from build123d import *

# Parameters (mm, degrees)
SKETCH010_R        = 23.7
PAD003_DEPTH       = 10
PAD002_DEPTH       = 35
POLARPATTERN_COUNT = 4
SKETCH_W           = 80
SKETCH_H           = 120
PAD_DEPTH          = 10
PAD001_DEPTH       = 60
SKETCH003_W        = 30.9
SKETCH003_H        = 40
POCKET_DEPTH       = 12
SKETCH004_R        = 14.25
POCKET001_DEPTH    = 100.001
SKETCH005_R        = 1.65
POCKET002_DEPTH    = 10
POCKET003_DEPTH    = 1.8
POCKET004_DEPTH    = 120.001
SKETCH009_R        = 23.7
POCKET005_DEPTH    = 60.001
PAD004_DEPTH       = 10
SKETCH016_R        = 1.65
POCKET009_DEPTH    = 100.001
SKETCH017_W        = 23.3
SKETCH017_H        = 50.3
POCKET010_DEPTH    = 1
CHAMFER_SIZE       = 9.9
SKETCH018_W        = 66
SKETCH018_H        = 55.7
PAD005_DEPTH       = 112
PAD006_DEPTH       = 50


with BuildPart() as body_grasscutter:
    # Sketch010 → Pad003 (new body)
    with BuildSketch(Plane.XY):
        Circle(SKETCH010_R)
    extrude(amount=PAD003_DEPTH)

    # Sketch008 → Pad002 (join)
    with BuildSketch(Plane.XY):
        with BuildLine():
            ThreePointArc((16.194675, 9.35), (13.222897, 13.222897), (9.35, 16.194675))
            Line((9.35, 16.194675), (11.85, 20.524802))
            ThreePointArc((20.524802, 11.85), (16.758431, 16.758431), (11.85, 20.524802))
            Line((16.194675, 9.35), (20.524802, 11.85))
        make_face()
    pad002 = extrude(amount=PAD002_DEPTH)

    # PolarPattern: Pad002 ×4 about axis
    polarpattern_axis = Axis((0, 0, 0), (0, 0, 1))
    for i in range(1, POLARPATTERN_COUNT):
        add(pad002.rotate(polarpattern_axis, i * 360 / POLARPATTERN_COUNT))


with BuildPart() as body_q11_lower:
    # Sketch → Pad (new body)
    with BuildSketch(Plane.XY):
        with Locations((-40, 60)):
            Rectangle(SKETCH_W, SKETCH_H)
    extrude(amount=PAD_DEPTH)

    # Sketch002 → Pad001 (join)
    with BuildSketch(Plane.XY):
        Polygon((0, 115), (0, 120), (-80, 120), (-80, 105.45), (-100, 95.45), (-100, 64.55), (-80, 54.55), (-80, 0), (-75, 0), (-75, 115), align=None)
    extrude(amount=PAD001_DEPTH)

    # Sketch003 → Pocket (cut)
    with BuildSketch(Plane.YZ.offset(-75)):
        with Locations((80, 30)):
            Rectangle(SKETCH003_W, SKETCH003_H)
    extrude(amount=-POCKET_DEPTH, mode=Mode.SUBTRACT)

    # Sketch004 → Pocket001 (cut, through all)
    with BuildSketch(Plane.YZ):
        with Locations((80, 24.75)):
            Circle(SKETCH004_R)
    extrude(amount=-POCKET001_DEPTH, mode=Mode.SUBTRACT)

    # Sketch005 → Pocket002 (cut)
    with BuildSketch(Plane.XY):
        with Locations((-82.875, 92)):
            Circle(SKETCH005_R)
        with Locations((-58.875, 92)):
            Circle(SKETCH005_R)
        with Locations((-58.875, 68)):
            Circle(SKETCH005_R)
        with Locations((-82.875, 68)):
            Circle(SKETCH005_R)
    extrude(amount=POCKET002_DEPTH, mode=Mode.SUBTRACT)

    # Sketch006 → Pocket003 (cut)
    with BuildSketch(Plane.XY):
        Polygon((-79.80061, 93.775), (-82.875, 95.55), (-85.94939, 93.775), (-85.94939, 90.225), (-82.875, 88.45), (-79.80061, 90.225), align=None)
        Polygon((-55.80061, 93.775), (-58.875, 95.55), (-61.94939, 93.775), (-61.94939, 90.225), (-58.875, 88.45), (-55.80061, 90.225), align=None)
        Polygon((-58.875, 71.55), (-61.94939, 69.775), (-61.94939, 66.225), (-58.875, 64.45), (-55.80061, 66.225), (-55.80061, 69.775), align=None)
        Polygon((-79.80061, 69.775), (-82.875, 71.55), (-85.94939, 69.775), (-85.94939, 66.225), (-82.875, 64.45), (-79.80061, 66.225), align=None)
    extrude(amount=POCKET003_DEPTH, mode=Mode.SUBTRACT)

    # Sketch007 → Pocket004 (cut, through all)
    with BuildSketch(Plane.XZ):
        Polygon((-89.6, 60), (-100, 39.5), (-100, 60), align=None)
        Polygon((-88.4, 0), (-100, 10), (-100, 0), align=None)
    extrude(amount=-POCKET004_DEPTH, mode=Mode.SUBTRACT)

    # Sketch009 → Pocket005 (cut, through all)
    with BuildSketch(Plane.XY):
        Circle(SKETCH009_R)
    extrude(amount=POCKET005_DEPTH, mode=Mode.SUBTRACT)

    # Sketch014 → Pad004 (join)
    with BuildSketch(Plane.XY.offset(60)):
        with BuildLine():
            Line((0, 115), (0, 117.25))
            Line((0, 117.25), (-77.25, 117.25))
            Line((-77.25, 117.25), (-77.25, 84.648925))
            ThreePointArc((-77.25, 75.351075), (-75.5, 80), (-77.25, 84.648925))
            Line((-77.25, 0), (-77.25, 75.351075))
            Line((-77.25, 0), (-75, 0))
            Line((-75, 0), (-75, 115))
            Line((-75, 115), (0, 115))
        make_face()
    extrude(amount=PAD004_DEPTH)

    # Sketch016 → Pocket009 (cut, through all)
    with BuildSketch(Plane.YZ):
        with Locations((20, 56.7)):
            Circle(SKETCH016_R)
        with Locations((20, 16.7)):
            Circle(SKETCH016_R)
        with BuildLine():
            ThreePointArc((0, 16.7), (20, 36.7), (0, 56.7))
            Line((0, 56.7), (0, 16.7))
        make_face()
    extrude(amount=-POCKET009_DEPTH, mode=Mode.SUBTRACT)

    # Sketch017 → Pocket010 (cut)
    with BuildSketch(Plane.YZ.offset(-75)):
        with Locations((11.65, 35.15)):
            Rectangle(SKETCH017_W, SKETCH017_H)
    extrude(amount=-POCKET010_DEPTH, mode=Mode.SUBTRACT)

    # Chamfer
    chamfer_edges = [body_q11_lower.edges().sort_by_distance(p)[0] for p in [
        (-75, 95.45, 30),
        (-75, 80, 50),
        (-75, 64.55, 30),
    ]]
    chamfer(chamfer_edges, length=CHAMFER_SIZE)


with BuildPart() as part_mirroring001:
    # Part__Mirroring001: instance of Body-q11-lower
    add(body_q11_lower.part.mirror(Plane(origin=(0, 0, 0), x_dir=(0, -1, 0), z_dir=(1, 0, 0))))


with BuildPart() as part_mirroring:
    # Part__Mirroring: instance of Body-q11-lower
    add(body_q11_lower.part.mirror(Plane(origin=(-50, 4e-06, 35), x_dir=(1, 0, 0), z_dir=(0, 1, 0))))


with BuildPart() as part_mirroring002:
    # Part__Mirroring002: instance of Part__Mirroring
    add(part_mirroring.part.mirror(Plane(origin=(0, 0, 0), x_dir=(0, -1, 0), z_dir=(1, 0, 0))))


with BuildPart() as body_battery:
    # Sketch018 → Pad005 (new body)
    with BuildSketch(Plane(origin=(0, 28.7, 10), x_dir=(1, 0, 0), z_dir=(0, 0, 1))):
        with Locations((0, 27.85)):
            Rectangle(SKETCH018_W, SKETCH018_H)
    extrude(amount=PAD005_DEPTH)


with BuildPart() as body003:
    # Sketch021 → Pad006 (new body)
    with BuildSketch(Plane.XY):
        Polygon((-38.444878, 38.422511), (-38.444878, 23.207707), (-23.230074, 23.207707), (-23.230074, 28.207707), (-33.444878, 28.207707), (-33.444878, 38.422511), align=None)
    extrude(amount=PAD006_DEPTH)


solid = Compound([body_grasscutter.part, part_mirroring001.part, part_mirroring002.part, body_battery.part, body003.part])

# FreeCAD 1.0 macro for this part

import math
import FreeCAD as App
import Part
import Sketcher
from FreeCAD import Vector
Q = App.Units.Quantity


def edges_at(feature, points):
    """Names of the edges that pass closest to the given points."""
    edges = feature.Shape.Edges
    near = lambda p: min(range(len(edges)), key=lambda i: edges[i].distToShape(Part.Vertex(*p))[0])
    return sorted({f"Edge{near(p) + 1}" for p in points})


def add_polygon(sketch, points):
    """Adds a closed chain of lines whose ends are joined by coincident constraints."""
    first, n = sketch.GeometryCount, len(points)
    for a, b in zip(points, points[1:] + points[:1]):
        sketch.addGeometry(Part.LineSegment(App.Vector(*a, 0), App.Vector(*b, 0)), False)
    for i in range(n):
        sketch.addConstraint(Sketcher.Constraint("Coincident", first + i, 2, first + (i + 1) % n, 1))

doc = App.newDocument("Part")
body = doc.addObject("PartDesign::Body", "Body")

sketch1 = doc.addObject("Sketcher::SketchObject", "Sketch")
body.addObject(sketch1)
sketch1.AttachmentSupport = (doc.XY_Plane, [""])
sketch1.MapMode = "FlatFace"
sketch1.addGeometry(Part.Circle(Vector(0, 0, 0), Vector(0, 0, 1), 23.7), False)
sketch1.addConstraint([
    Sketcher.Constraint("Coincident", 0, 3, -1, 1),
    Sketcher.Constraint("Diameter", 0, Q("47.4 mm")),
])
pad1 = doc.addObject("PartDesign::Pad", "Pad")
body.addObject(pad1)
pad1.Profile = sketch1
pad1.Length = 10

sketch2 = doc.addObject("Sketcher::SketchObject", "Sketch001")
body.addObject(sketch2)
sketch2.AttachmentSupport = (doc.XY_Plane, [""])
sketch2.MapMode = "FlatFace"
sketch2.addGeometry([
    Part.ArcOfCircle(Part.Circle(Vector(0.000007, 0.000007, 0), Vector(0, 0, 1), 18.699991), math.radians(29.999993), math.radians(60.000007)),
    Part.LineSegment(Vector(16.194675, 9.35, 0), Vector(20.524802, 11.85, 0)),
    Part.ArcOfCircle(Part.Circle(Vector(0.00001, 0.00001, 0), Vector(0, 0, 1), 23.699987), math.radians(29.999992), math.radians(60.000008)),
    Part.LineSegment(Vector(11.85, 20.524802, 0), Vector(9.35, 16.194675, 0)),
], False)
sketch2.addConstraint([
    Sketcher.Constraint("Coincident", 0, 1, 1, 1),
    Sketcher.Constraint("Coincident", 1, 2, 2, 1),
    Sketcher.Constraint("Coincident", 2, 2, 3, 1),
    Sketcher.Constraint("Coincident", 3, 2, 0, 2),
    Sketcher.Constraint("Coincident", 0, 3, -1, 1),
    Sketcher.Constraint("Coincident", 2, 3, 0, 3),
    Sketcher.Constraint("Angle", 1, Q("30 deg")),
    Sketcher.Constraint("Angle", 3, Q("-120 deg")),
    Sketcher.Constraint("Distance", 1, Q("5 mm")),
    Sketcher.Constraint("DistanceY", -1, 1, 0, 1, Q("9.35 mm")),
    Sketcher.Constraint("DistanceX", -1, 1, 2, 2, Q("11.85 mm")),
    Sketcher.Constraint("Radius", 0, Q("18.699991 mm")),
])
pad2 = doc.addObject("PartDesign::Pad", "Pad001")
body.addObject(pad2)
pad2.Profile = sketch2
pad2.Length = 35
doc.recompute()

polarpattern = doc.addObject("PartDesign::PolarPattern", "PolarPattern")
body.addObject(polarpattern)
polarpattern.Originals = [pad2]
polarpattern.Axis = (doc.Z_Axis, [""])
polarpattern.Angle = 360
polarpattern.Occurrences = 4
body.Tip = polarpattern
body2 = doc.addObject("PartDesign::Body", "Body001")

sketch3 = doc.addObject("Sketcher::SketchObject", "Sketch002")
body2.addObject(sketch3)
sketch3.AttachmentSupport = (doc.getObject("XY_Plane001"), [""])
sketch3.MapMode = "FlatFace"
add_polygon(sketch3, [(-80, 120), (-80, 0), (0, 0), (0, 120)])
sketch3.addConstraint([
    Sketcher.Constraint("Vertical", 0),
    Sketcher.Constraint("Horizontal", 1),
    Sketcher.Constraint("Vertical", 2),
    Sketcher.Constraint("Horizontal", 3),
    Sketcher.Constraint("Coincident", 1, 2, -1, 1),
    Sketcher.Constraint("DistanceX", 1, 1, 1, 2, Q("80 mm")),
    Sketcher.Constraint("DistanceY", 0, 2, 0, 1, Q("120 mm")),
])
pad3 = doc.addObject("PartDesign::Pad", "Pad002")
body2.addObject(pad3)
pad3.Profile = sketch3
pad3.Length = 10

sketch4 = doc.addObject("Sketcher::SketchObject", "Sketch003")
body2.addObject(sketch4)
sketch4.AttachmentSupport = (doc.getObject("XY_Plane001"), [""])
sketch4.MapMode = "FlatFace"
add_polygon(sketch4, [(0, 115), (0, 120), (-80, 120), (-80, 105.45), (-100, 95.45), (-100, 64.55), (-80, 54.55), (-80, 0), (-75, 0), (-75, 115)])
sketch4.addConstraint([
    Sketcher.Constraint("Vertical", 0),
    Sketcher.Constraint("Horizontal", 1),
    Sketcher.Constraint("Vertical", 2),
    Sketcher.Constraint("Vertical", 4),
    Sketcher.Constraint("Vertical", 6),
    Sketcher.Constraint("Horizontal", 7),
    Sketcher.Constraint("Vertical", 8),
    Sketcher.Constraint("Horizontal", 9),
    Sketcher.Constraint("PointOnObject", 0, 2, -2),
    Sketcher.Constraint("PointOnObject", 6, 2, -1),
    Sketcher.Constraint("Vertical", 2, 2, 5, 2),
    Sketcher.Constraint("Equal", 7, 0),
    Sketcher.Constraint("Equal", 3, 5),
    Sketcher.Constraint("DistanceX", 1, 2, 1, 1, Q("80 mm")),
    Sketcher.Constraint("DistanceX", 7, 1, 7, 2, Q("5 mm")),
    Sketcher.Constraint("DistanceY", 8, 1, 8, 2, Q("115 mm")),
    Sketcher.Constraint("DistanceY", 4, 2, 4, 1, Q("30.9 mm")),
    Sketcher.Constraint("DistanceX", 3, 2, -1, 1, Q("100 mm")),
    Sketcher.Constraint("DistanceY", 3, 2, 2, 2, Q("10 mm")),
    Sketcher.Constraint("DistanceY", 2, 2, 2, 1, Q("14.55 mm")),
])
pad4 = doc.addObject("PartDesign::Pad", "Pad003")
body2.addObject(pad4)
pad4.Profile = sketch4
pad4.Length = 60

sketch5 = doc.addObject("Sketcher::SketchObject", "Sketch004")
body2.addObject(sketch5)
sketch5.AttachmentSupport = (doc.getObject("YZ_Plane001"), [""])
sketch5.MapMode = "FlatFace"
sketch5.AttachmentOffset = App.Placement(Vector(0, 0, -75), App.Rotation())
add_polygon(sketch5, [(64.55, 50), (64.55, 10), (95.45, 10), (95.45, 50)])
sketch5.addConstraint([
    Sketcher.Constraint("Vertical", 0),
    Sketcher.Constraint("Horizontal", 1),
    Sketcher.Constraint("Vertical", 2),
    Sketcher.Constraint("Horizontal", 3),
    Sketcher.Constraint("DistanceY", 0, 2, 0, 1, Q("40 mm")),
    Sketcher.Constraint("DistanceX", 1, 1, 1, 2, Q("30.9 mm")),
    Sketcher.Constraint("DistanceY", -1, 1, 0, 2, Q("10 mm")),
    Sketcher.Constraint("DistanceX", -1, 1, 0, 2, Q("64.55 mm")),
])
pocket1 = doc.addObject("PartDesign::Pocket", "Pocket")
body2.addObject(pocket1)
pocket1.Profile = sketch5
pocket1.Length = 12

sketch6 = doc.addObject("Sketcher::SketchObject", "Sketch005")
body2.addObject(sketch6)
sketch6.AttachmentSupport = (doc.getObject("YZ_Plane001"), [""])
sketch6.MapMode = "FlatFace"
sketch6.addGeometry(Part.Circle(Vector(80, 24.75, 0), Vector(0, 0, 1), 14.25), False)
sketch6.addConstraint([
    Sketcher.Constraint("Diameter", 0, Q("28.5 mm")),
    Sketcher.Constraint("DistanceX", -1, 1, 0, 3, Q("80 mm")),
    Sketcher.Constraint("DistanceY", -1, 1, 0, 3, Q("24.75 mm")),
])
pocket2 = doc.addObject("PartDesign::Pocket", "Pocket001")
body2.addObject(pocket2)
pocket2.Profile = sketch6
pocket2.Type = "ThroughAll"

sketch7 = doc.addObject("Sketcher::SketchObject", "Sketch006")
body2.addObject(sketch7)
sketch7.AttachmentSupport = (doc.getObject("XY_Plane001"), [""])
sketch7.MapMode = "FlatFace"
sketch7.addGeometry([
    Part.Circle(Vector(-82.875, 92, 0), Vector(0, 0, 1), 1.65),
    Part.Circle(Vector(-58.875, 92, 0), Vector(0, 0, 1), 1.65),
    Part.Circle(Vector(-58.875, 68, 0), Vector(0, 0, 1), 1.65),
    Part.Circle(Vector(-82.875, 68, 0), Vector(0, 0, 1), 1.65),
], False)
sketch7.addConstraint([
    Sketcher.Constraint("Equal", 0, 1),
    Sketcher.Constraint("Equal", 1, 2),
    Sketcher.Constraint("Equal", 2, 3),
    Sketcher.Constraint("Horizontal", 0, 3, 1, 3),
    Sketcher.Constraint("Horizontal", 2, 3, 3, 3),
    Sketcher.Constraint("Vertical", 1, 3, 2, 3),
    Sketcher.Constraint("Vertical", 0, 3, 3, 3),
    Sketcher.Constraint("Diameter", 0, Q("3.3 mm")),
    Sketcher.Constraint("DistanceY", -1, 1, 0, 3, Q("92 mm")),
    Sketcher.Constraint("DistanceY", -1, 1, 2, 3, Q("68 mm")),
    Sketcher.Constraint("DistanceX", 0, 3, 1, 3, Q("24 mm")),
    Sketcher.Constraint("DistanceX", 0, 3, -1, 1, Q("82.875 mm")),
])
pocket3 = doc.addObject("PartDesign::Pocket", "Pocket002")
body2.addObject(pocket3)
pocket3.Profile = sketch7
pocket3.Length = 10
pocket3.Reversed = True

sketch8 = doc.addObject("Sketcher::SketchObject", "Sketch007")
body2.addObject(sketch8)
sketch8.AttachmentSupport = (doc.getObject("XY_Plane001"), [""])
sketch8.MapMode = "FlatFace"
add_polygon(sketch8, [(-79.80061, 93.775), (-82.875, 95.55), (-85.94939, 93.775), (-85.94939, 90.225), (-82.875, 88.45), (-79.80061, 90.225)])
add_polygon(sketch8, [(-55.80061, 93.775), (-58.875, 95.55), (-61.94939, 93.775), (-61.94939, 90.225), (-58.875, 88.45), (-55.80061, 90.225)])
add_polygon(sketch8, [(-58.875, 71.55), (-61.94939, 69.775), (-61.94939, 66.225), (-58.875, 64.45), (-55.80061, 66.225), (-55.80061, 69.775)])
add_polygon(sketch8, [(-79.80061, 69.775), (-82.875, 71.55), (-85.94939, 69.775), (-85.94939, 66.225), (-82.875, 64.45), (-79.80061, 66.225)])
sketch8.addConstraint([
    Sketcher.Constraint("Vertical", 2),
    Sketcher.Constraint("Vertical", 5),
    Sketcher.Constraint("Vertical", 8),
    Sketcher.Constraint("Vertical", 11),
    Sketcher.Constraint("Vertical", 13),
    Sketcher.Constraint("Vertical", 16),
    Sketcher.Constraint("Vertical", 20),
    Sketcher.Constraint("Vertical", 23),
    Sketcher.Constraint("Parallel", 0, 3),
    Sketcher.Constraint("Parallel", 1, 4),
    Sketcher.Constraint("Parallel", 3, 6),
    Sketcher.Constraint("Parallel", 4, 7),
    Sketcher.Constraint("Parallel", 6, 9),
    Sketcher.Constraint("Parallel", 7, 10),
    Sketcher.Constraint("Parallel", 10, 12),
    Sketcher.Constraint("Parallel", 9, 14),
    Sketcher.Constraint("Parallel", 12, 15),
    Sketcher.Constraint("Parallel", 14, 17),
    Sketcher.Constraint("Parallel", 17, 18),
    Sketcher.Constraint("Parallel", 15, 19),
    Sketcher.Constraint("Parallel", 18, 21),
    Sketcher.Constraint("Parallel", 19, 22),
    Sketcher.Constraint("Horizontal", 2, 2, 4, 2),
    Sketcher.Constraint("Horizontal", 1, 2, 5, 2),
    Sketcher.Constraint("Horizontal", 0, 2, 6, 2),
    Sketcher.Constraint("Horizontal", 5, 2, 7, 2),
    Sketcher.Constraint("Horizontal", 4, 2, 8, 2),
    Sketcher.Constraint("Horizontal", 3, 2, 9, 2),
    Sketcher.Constraint("Horizontal", 8, 2, 10, 2),
    Sketcher.Constraint("Horizontal", 13, 2, 15, 2),
    Sketcher.Constraint("Horizontal", 12, 2, 16, 2),
    Sketcher.Constraint("Horizontal", 17, 2, 18, 2),
    Sketcher.Constraint("Horizontal", 16, 2, 19, 2),
    Sketcher.Constraint("Horizontal", 15, 2, 20, 2),
    Sketcher.Constraint("Horizontal", 14, 2, 21, 2),
    Sketcher.Constraint("Horizontal", 20, 2, 22, 2),
    Sketcher.Constraint("Vertical", 0, 2, 3, 2),
    Sketcher.Constraint("Vertical", 8, 2, 12, 2),
    Sketcher.Constraint("Vertical", 9, 2, 14, 2),
    Sketcher.Constraint("Vertical", 3, 2, 18, 2),
    Sketcher.Constraint("Equal", 11, 13),
    Sketcher.Constraint("Angle", 0, Q("149.999999 deg")),
    Sketcher.Constraint("DistanceX", 0, 2, 6, 2, Q("24 mm")),
    Sketcher.Constraint("DistanceY", 12, 2, 7, 2, Q("24 mm")),
    Sketcher.Constraint("DistanceY", 2, 2, 2, 1, Q("3.55 mm")),
    Sketcher.Constraint("DistanceY", 3, 2, 0, 2, Q("7.1 mm")),
    Sketcher.Constraint("DistanceY", -1, 1, 0, 2, Q("95.55 mm")),
    Sketcher.Constraint("DistanceX", 0, 2, -1, 1, Q("82.875 mm")),
])
pocket4 = doc.addObject("PartDesign::Pocket", "Pocket003")
body2.addObject(pocket4)
pocket4.Profile = sketch8
pocket4.Length = 1.8
pocket4.Reversed = True

sketch9 = doc.addObject("Sketcher::SketchObject", "Sketch008")
body2.addObject(sketch9)
sketch9.AttachmentSupport = (doc.getObject("XZ_Plane001"), [""])
sketch9.MapMode = "FlatFace"
add_polygon(sketch9, [(-100, 39.5), (-89.6, 60), (-100, 60)])
add_polygon(sketch9, [(-88.4, 0), (-100, 10), (-100, 0)])
sketch9.addConstraint([
    Sketcher.Constraint("Horizontal", 1),
    Sketcher.Constraint("Vertical", 2),
    Sketcher.Constraint("Vertical", 4),
    Sketcher.Constraint("Horizontal", 5),
    Sketcher.Constraint("PointOnObject", 4, 2, -1),
    Sketcher.Constraint("Vertical", 2, 2, 3, 2),
    Sketcher.Constraint("DistanceY", 4, 2, 4, 1, Q("10 mm")),
    Sketcher.Constraint("DistanceX", 1, 2, 1, 1, Q("10.4 mm")),
    Sketcher.Constraint("DistanceX", 5, 1, 5, 2, Q("11.6 mm")),
    Sketcher.Constraint("DistanceY", 2, 2, 2, 1, Q("20.5 mm")),
    Sketcher.Constraint("DistanceY", -1, 1, 0, 2, Q("60 mm")),
    Sketcher.Constraint("DistanceX", 1, 2, -1, 1, Q("100 mm")),
])
pocket5 = doc.addObject("PartDesign::Pocket", "Pocket004")
body2.addObject(pocket5)
pocket5.Profile = sketch9
pocket5.Type = "ThroughAll"

sketch10 = doc.addObject("Sketcher::SketchObject", "Sketch009")
body2.addObject(sketch10)
sketch10.AttachmentSupport = (doc.getObject("XY_Plane001"), [""])
sketch10.MapMode = "FlatFace"
sketch10.addGeometry(Part.Circle(Vector(0, 0, 0), Vector(0, 0, 1), 23.7), False)
sketch10.addConstraint([
    Sketcher.Constraint("Coincident", 0, 3, -1, 1),
    Sketcher.Constraint("Diameter", 0, Q("47.4 mm")),
])
pocket6 = doc.addObject("PartDesign::Pocket", "Pocket005")
body2.addObject(pocket6)
pocket6.Profile = sketch10
pocket6.Type = "ThroughAll"
pocket6.Reversed = True

sketch11 = doc.addObject("Sketcher::SketchObject", "Sketch010")
body2.addObject(sketch11)
sketch11.AttachmentSupport = (doc.getObject("XY_Plane001"), [""])
sketch11.MapMode = "FlatFace"
sketch11.AttachmentOffset = App.Placement(Vector(0, 0, 60), App.Rotation())
sketch11.addGeometry([
    Part.LineSegment(Vector(0, 115, 0), Vector(0, 117.25, 0)),
    Part.LineSegment(Vector(0, 117.25, 0), Vector(-77.25, 117.25, 0)),
    Part.LineSegment(Vector(-77.25, 117.25, 0), Vector(-77.25, 84.648925, 0)),
    Part.ArcOfCircle(Part.Circle(Vector(-82.550001, 80, 0), Vector(0, 0, 1), 7.050001), math.radians(-41.255798), math.radians(41.255798)),
    Part.LineSegment(Vector(-77.25, 75.351075, 0), Vector(-77.25, 0, 0)),
    Part.LineSegment(Vector(-77.25, 0, 0), Vector(-75, 0, 0)),
    Part.LineSegment(Vector(-75, 0, 0), Vector(-75, 115, 0)),
    Part.LineSegment(Vector(-75, 115, 0), Vector(0, 115, 0)),
], False)
sketch11.addConstraint([
    Sketcher.Constraint("Coincident", 0, 2, 1, 1),
    Sketcher.Constraint("Coincident", 1, 2, 2, 1),
    Sketcher.Constraint("Coincident", 2, 2, 3, 2),
    Sketcher.Constraint("Coincident", 3, 1, 4, 1),
    Sketcher.Constraint("Coincident", 4, 2, 5, 1),
    Sketcher.Constraint("Coincident", 5, 2, 6, 1),
    Sketcher.Constraint("Coincident", 6, 2, 7, 1),
    Sketcher.Constraint("Coincident", 7, 2, 0, 1),
    Sketcher.Constraint("Vertical", 0),
    Sketcher.Constraint("Horizontal", 1),
    Sketcher.Constraint("Vertical", 2),
    Sketcher.Constraint("Vertical", 4),
    Sketcher.Constraint("Horizontal", 5),
    Sketcher.Constraint("Vertical", 6),
    Sketcher.Constraint("Horizontal", 7),
    Sketcher.Constraint("PointOnObject", 0, 2, -2),
    Sketcher.Constraint("PointOnObject", 4, 2, -1),
    Sketcher.Constraint("Vertical", 2, 2, 3, 1),
    Sketcher.Constraint("Equal", 5, 0),
    Sketcher.Constraint("DistanceX", 7, 1, 7, 2, Q("75 mm")),
    Sketcher.Constraint("DistanceY", 6, 1, 6, 2, Q("115 mm")),
    Sketcher.Constraint("Radius", 3, Q("7.050001 mm")),
    Sketcher.Constraint("DistanceY", -1, 1, 3, 3, Q("80 mm")),
    Sketcher.Constraint("DistanceX", 1, 2, 1, 1, Q("77.25 mm")),
    Sketcher.Constraint("DistanceX", 3, 3, 1, 2, Q("5.300001 mm")),
])
pad5 = doc.addObject("PartDesign::Pad", "Pad004")
body2.addObject(pad5)
pad5.Profile = sketch11
pad5.Length = 10

sketch12 = doc.addObject("Sketcher::SketchObject", "Sketch011")
body2.addObject(sketch12)
sketch12.AttachmentSupport = (doc.getObject("YZ_Plane001"), [""])
sketch12.MapMode = "FlatFace"
sketch12.addGeometry([
    Part.Circle(Vector(20, 56.7, 0), Vector(0, 0, 1), 1.65),
    Part.Circle(Vector(20, 16.7, 0), Vector(0, 0, 1), 1.65),
    Part.ArcOfCircle(Part.Circle(Vector(0, 36.7, 0), Vector(0, 0, 1), 20), math.radians(-90), math.radians(90)),
    Part.LineSegment(Vector(0, 56.7, 0), Vector(0, 16.7, 0)),
], False)
sketch12.addConstraint([
    Sketcher.Constraint("Coincident", 2, 1, 3, 2),
    Sketcher.Constraint("Coincident", 3, 1, 2, 2),
    Sketcher.Constraint("Vertical", 3),
    Sketcher.Constraint("Equal", 0, 1),
    Sketcher.Constraint("PointOnObject", 2, 3, -2),
    Sketcher.Constraint("PointOnObject", 2, 1, -2),
    Sketcher.Constraint("Horizontal", 1, 3, 2, 1),
    Sketcher.Constraint("Horizontal", 0, 3, 3, 1),
    Sketcher.Constraint("Vertical", 0, 3, 1, 3),
    Sketcher.Constraint("Radius", 2, Q("20 mm")),
    Sketcher.Constraint("Diameter", 0, Q("3.3 mm")),
    Sketcher.Constraint("DistanceX", -1, 1, 0, 3, Q("20 mm")),
    Sketcher.Constraint("DistanceY", -1, 1, 0, 3, Q("56.7 mm")),
])
pocket7 = doc.addObject("PartDesign::Pocket", "Pocket006")
body2.addObject(pocket7)
pocket7.Profile = sketch12
pocket7.Type = "ThroughAll"

sketch13 = doc.addObject("Sketcher::SketchObject", "Sketch012")
body2.addObject(sketch13)
sketch13.AttachmentSupport = (doc.getObject("YZ_Plane001"), [""])
sketch13.MapMode = "FlatFace"
sketch13.AttachmentOffset = App.Placement(Vector(0, 0, -75), App.Rotation())
add_polygon(sketch13, [(0, 60.3), (0, 10), (23.3, 10), (23.3, 60.3)])
sketch13.addConstraint([
    Sketcher.Constraint("Vertical", 0),
    Sketcher.Constraint("Horizontal", 1),
    Sketcher.Constraint("Vertical", 2),
    Sketcher.Constraint("Horizontal", 3),
    Sketcher.Constraint("PointOnObject", 0, 2, -2),
    Sketcher.Constraint("DistanceX", 1, 1, 1, 2, Q("23.3 mm")),
    Sketcher.Constraint("DistanceY", 0, 2, 0, 1, Q("50.3 mm")),
    Sketcher.Constraint("DistanceY", -1, 1, 0, 2, Q("10 mm")),
])
pocket8 = doc.addObject("PartDesign::Pocket", "Pocket007")
body2.addObject(pocket8)
pocket8.Profile = sketch13
pocket8.Length = 1
doc.recompute()

chamfer = doc.addObject("PartDesign::Chamfer", "Chamfer")
body2.addObject(chamfer)
chamfer.Base = (pocket8, edges_at(pocket8, [(-75, 95.45, 30), (-75, 80, 50), (-75, 64.55, 30)]))
chamfer.Size = 9.9
body3 = doc.addObject("PartDesign::Body", "Body002")
doc.recompute()

mirroring = doc.addObject("Part::Mirroring", "Mirroring")
mirroring.Source = body2
mirroring.Base = Vector(0, 0, 0)
mirroring.Normal = Vector(1, 0, 0)
body3.BaseFeature = mirroring
doc.recompute()
body4 = doc.addObject("PartDesign::Body", "Body003")
doc.recompute()

mirroring2 = doc.addObject("Part::Mirroring", "Mirroring001")
mirroring2.Source = body2
mirroring2.Base = Vector(-50, 0.000004, 35)
mirroring2.Normal = Vector(0, 1, 0)
body4.BaseFeature = mirroring2
doc.recompute()
body5 = doc.addObject("PartDesign::Body", "Body004")
doc.recompute()

mirroring3 = doc.addObject("Part::Mirroring", "Mirroring002")
mirroring3.Source = body4
mirroring3.Base = Vector(0, 0, 0)
mirroring3.Normal = Vector(1, 0, 0)
body5.BaseFeature = mirroring3
doc.recompute()
body6 = doc.addObject("PartDesign::Body", "Body005")

sketch14 = doc.addObject("Sketcher::SketchObject", "Sketch013")
body6.addObject(sketch14)
sketch14.AttachmentSupport = (doc.getObject("XY_Plane005"), [""])
sketch14.MapMode = "FlatFace"
sketch14.AttachmentOffset = App.Placement(Vector(0, 0, 10), App.Rotation())
add_polygon(sketch14, [(-33, 84.4), (-33, 28.7), (33, 28.7), (33, 84.4)])
sketch14.addConstraint([
    Sketcher.Constraint("Vertical", 0),
    Sketcher.Constraint("Horizontal", 1),
    Sketcher.Constraint("Vertical", 2),
    Sketcher.Constraint("Horizontal", 3),
    Sketcher.Constraint("DistanceX", 1, 1, 1, 2, Q("66 mm")),
    Sketcher.Constraint("DistanceY", 0, 2, 0, 1, Q("55.7 mm")),
    Sketcher.Constraint("DistanceX", 0, 2, -1, 1, Q("33 mm")),
    Sketcher.Constraint("DistanceY", -1, 1, 0, 2, Q("28.7 mm")),
])
pad6 = doc.addObject("PartDesign::Pad", "Pad005")
body6.addObject(pad6)
pad6.Profile = sketch14
pad6.Length = 112
body7 = doc.addObject("PartDesign::Body", "Body006")

sketch15 = doc.addObject("Sketcher::SketchObject", "Sketch014")
body7.addObject(sketch15)
sketch15.AttachmentSupport = (doc.getObject("XY_Plane006"), [""])
sketch15.MapMode = "FlatFace"
add_polygon(sketch15, [(-38.444878, 38.422511), (-38.444878, 23.207707), (-23.230074, 23.207707), (-23.230074, 28.207707), (-33.444878, 28.207707), (-33.444878, 38.422511)])
sketch15.addConstraint([
    Sketcher.Constraint("Vertical", 0),
    Sketcher.Constraint("Horizontal", 1),
    Sketcher.Constraint("Vertical", 2),
    Sketcher.Constraint("Horizontal", 3),
    Sketcher.Constraint("Vertical", 4),
    Sketcher.Constraint("Horizontal", 5),
    Sketcher.Constraint("Equal", 1, 0),
    Sketcher.Constraint("Equal", 5, 2),
    Sketcher.Constraint("DistanceX", 5, 2, 5, 1, Q("5 mm")),
    Sketcher.Constraint("DistanceX", 1, 1, 1, 2, Q("15.214804 mm")),
    Sketcher.Constraint("DistanceX", 0, 2, -1, 1, Q("38.444878 mm")),
    Sketcher.Constraint("DistanceY", -1, 1, 4, 2, Q("38.422511 mm")),
])
pad7 = doc.addObject("PartDesign::Pad", "Pad006")
body7.addObject(pad7)
pad7.Profile = sketch15
pad7.Length = 50
body2.Visibility = False
body4.Visibility = False
mirroring.Visibility = False
mirroring2.Visibility = False
mirroring3.Visibility = False

doc.recompute()
